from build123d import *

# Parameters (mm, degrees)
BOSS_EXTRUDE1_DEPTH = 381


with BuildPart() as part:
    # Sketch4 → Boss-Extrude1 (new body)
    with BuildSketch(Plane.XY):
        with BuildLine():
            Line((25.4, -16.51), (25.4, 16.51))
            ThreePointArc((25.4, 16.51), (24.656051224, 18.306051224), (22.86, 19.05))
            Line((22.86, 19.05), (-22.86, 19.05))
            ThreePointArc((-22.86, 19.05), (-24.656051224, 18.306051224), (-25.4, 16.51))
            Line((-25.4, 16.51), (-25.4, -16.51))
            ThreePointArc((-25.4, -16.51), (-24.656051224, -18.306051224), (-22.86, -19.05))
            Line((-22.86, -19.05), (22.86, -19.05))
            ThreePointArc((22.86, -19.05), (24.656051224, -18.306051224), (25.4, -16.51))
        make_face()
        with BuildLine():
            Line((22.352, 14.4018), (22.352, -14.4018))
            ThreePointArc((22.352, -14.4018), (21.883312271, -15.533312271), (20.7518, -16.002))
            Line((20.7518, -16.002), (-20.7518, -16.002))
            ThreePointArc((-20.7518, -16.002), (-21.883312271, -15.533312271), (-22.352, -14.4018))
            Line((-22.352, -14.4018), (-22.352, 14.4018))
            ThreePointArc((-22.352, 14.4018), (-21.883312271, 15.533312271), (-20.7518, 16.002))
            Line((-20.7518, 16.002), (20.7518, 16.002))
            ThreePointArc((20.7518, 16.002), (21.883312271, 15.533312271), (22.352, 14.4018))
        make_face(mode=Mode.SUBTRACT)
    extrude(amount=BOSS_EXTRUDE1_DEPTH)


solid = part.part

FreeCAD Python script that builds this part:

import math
import FreeCAD as App
import Part
import Sketcher

V = App.Vector
Q = App.Units.Quantity

doc = App.newDocument("Part")
body = doc.addObject("PartDesign::Body", "Body")

sketch1 = doc.addObject("Sketcher::SketchObject", "Sketch")
body.addObject(sketch1)
sketch1.AttachmentSupport = (doc.XY_Plane, [""])
sketch1.MapMode = "FlatFace"
sketch1.addGeometry([
    Part.LineSegment(V(25.4, -16.5, 0), V(25.4, 16.5, 0)),
    Part.ArcOfCircle(Part.Circle(V(22.9, 16.5, 0), V(0, 0, 1), 2.5), math.radians(0), math.radians(90)),
    Part.LineSegment(V(22.9, 19.1, 0), V(-22.9, 19.1, 0)),
    Part.ArcOfCircle(Part.Circle(V(-22.9, 16.5, 0), V(0, 0, 1), 2.5), math.radians(90), math.radians(180)),
    Part.LineSegment(V(-25.4, 16.5, 0), V(-25.4, -16.5, 0)),
    Part.ArcOfCircle(Part.Circle(V(-22.9, -16.5, 0), V(0, 0, 1), 2.5), math.radians(-180), math.radians(-90)),
    Part.LineSegment(V(-22.9, -19.1, 0), V(22.9, -19.1, 0)),
    Part.ArcOfCircle(Part.Circle(V(22.9, -16.5, 0), V(0, 0, 1), 2.5), math.radians(-90), math.radians(0)),
    Part.ArcOfCircle(Part.Circle(V(20.8, 14.4, 0), V(0, 0, 1), 1.6), math.radians(0), math.radians(90)),
    Part.LineSegment(V(22.4, 14.4, 0), V(22.4, -14.4, 0)),
    Part.ArcOfCircle(Part.Circle(V(20.8, -14.4, 0), V(0, 0, 1), 1.6), math.radians(-90), math.radians(0)),
    Part.LineSegment(V(20.8, -16, 0), V(-20.8, -16, 0)),
    Part.ArcOfCircle(Part.Circle(V(-20.8, -14.4, 0), V(0, 0, 1), 1.6), math.radians(-180), math.radians(-90)),
    Part.LineSegment(V(-22.4, -14.4, 0), V(-22.4, 14.4, 0)),
    Part.ArcOfCircle(Part.Circle(V(-20.8, 14.4, 0), V(0, 0, 1), 1.6), math.radians(90), math.radians(180)),
    Part.LineSegment(V(-20.8, 16, 0), V(20.8, 16, 0)),
], False)
sketch1.addConstraint([
    Sketcher.Constraint("Tangent", 0, 2, 1, 1),
    Sketcher.Constraint("Tangent", 1, 2, 2, 1),
    Sketcher.Constraint("Tangent", 2, 2, 3, 1),
    Sketcher.Constraint("Tangent", 3, 2, 4, 1),
    Sketcher.Constraint("Tangent", 4, 2, 5, 1),
    Sketcher.Constraint("Tangent", 5, 2, 6, 1),
    Sketcher.Constraint("Tangent", 6, 2, 7, 1),
    Sketcher.Constraint("Tangent", 7, 2, 0, 1),
    Sketcher.Constraint("Tangent", 8, 1, 9, 1),
    Sketcher.Constraint("Tangent", 9, 2, 10, 2),
    Sketcher.Constraint("Tangent", 10, 1, 11, 1),
    Sketcher.Constraint("Tangent", 11, 2, 12, 2),
    Sketcher.Constraint("Tangent", 12, 1, 13, 1),
    Sketcher.Constraint("Tangent", 13, 2, 14, 2),
    Sketcher.Constraint("Tangent", 14, 1, 15, 1),
    Sketcher.Constraint("Tangent", 15, 2, 8, 2),
    Sketcher.Constraint("Vertical", 0),
    Sketcher.Constraint("Horizontal", 2),
    Sketcher.Constraint("Vertical", 4),
    Sketcher.Constraint("Horizontal", 6),
    Sketcher.Constraint("Vertical", 9),
    Sketcher.Constraint("Horizontal", 11),
    Sketcher.Constraint("Vertical", 13),
    Sketcher.Constraint("Horizontal", 15),
    Sketcher.Constraint("Equal", 1, 3),
    Sketcher.Constraint("Equal", 3, 5),
    Sketcher.Constraint("Equal", 5, 7),
    Sketcher.Constraint("Equal", 8, 10),
    Sketcher.Constraint("Equal", 10, 12),
    Sketcher.Constraint("Equal", 12, 14),
    Sketcher.Constraint("Symmetric", 1, 3, 5, 3, -1, 1),
    Sketcher.Constraint("Symmetric", 8, 3, 12, 3, -1, 1),
    Sketcher.Constraint("Radius", 1, Q("0.1 in")),
    Sketcher.Constraint("DistanceX", 2, 2, 2, 1, Q("1.8 in")),
    Sketcher.Constraint("DistanceY", 0, 1, 0, 2, Q("1.3 in")),
    Sketcher.Constraint("Radius", 8, Q("0.063 in")),
    Sketcher.Constraint("DistanceX", 11, 2, 11, 1, Q("1.634 in")),
    Sketcher.Constraint("DistanceY", 9, 2, 9, 1, Q("1.134 in")),
])
pad1 = doc.addObject("PartDesign::Pad", "Pad")
body.addObject(pad1)
pad1.Profile = sketch1
pad1.Length = Q("15 in")

doc.recompute()
